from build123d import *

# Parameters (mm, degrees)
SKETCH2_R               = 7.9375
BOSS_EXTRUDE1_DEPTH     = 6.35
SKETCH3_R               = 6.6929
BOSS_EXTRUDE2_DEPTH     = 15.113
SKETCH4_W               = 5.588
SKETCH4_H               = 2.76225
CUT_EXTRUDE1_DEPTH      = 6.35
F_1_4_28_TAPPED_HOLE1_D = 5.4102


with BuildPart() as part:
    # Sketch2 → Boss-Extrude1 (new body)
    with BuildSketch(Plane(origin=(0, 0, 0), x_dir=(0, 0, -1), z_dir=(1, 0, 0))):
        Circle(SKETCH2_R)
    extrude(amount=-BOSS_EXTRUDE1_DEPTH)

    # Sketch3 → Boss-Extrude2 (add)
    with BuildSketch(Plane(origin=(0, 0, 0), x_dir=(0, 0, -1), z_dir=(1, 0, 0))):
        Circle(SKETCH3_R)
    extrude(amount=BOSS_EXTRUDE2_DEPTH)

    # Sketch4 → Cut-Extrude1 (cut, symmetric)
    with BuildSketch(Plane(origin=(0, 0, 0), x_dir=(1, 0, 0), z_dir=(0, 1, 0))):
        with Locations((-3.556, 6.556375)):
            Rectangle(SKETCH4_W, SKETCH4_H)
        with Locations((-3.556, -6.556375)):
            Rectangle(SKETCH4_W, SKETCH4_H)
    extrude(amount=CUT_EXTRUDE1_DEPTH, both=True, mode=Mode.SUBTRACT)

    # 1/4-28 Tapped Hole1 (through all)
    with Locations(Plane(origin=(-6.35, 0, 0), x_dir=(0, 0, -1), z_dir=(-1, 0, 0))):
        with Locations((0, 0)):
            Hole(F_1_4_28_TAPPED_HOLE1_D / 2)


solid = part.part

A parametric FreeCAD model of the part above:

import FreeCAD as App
import Part
import Sketcher
Q = App.Units.Quantity


def add_polygon(sketch, points):
    """Adds a closed chain of lines whose ends are joined by coincident constraints."""
    first, n = sketch.GeometryCount, len(points)
    for a, b in zip(points, points[1:] + points[:1]):
        sketch.addGeometry(Part.LineSegment(App.Vector(*a, 0), App.Vector(*b, 0)), False)
    for i in range(n):
        sketch.addConstraint(Sketcher.Constraint("Coincident", first + i, 2, first + (i + 1) % n, 1))

doc = App.newDocument("Part")
body = doc.addObject("PartDesign::Body", "Body")

# Sketch on YZ plane
sketch1 = body.newObject("Sketcher::SketchObject", "Sketch")
sketch1.AttachmentSupport = (doc.getObject("YZ_Plane"), [""])
sketch1.MapMode = "FlatFace"
sketch1.addGeometry(Part.Circle(App.Vector(0, 0, 0), App.Vector(0, 0, 1), 8), False)
sketch1.addConstraint(Sketcher.Constraint("Coincident", 0, 3, -1, 1))
sketch1.addConstraint(Sketcher.Constraint("Diameter", 0, Q("0.625 in")))
pad1 = body.newObject("PartDesign::Pad", "Pad")
pad1.Profile = sketch1
pad1.Length = Q("0.25 in")
pad1.Reversed = True

# Sketch on YZ plane
sketch2 = body.newObject("Sketcher::SketchObject", "Sketch001")
sketch2.AttachmentSupport = (doc.getObject("YZ_Plane"), [""])
sketch2.MapMode = "FlatFace"
sketch2.addGeometry(Part.Circle(App.Vector(0, 0, 0), App.Vector(0, 0, 1), 7), False)
sketch2.addConstraint(Sketcher.Constraint("Coincident", 0, 3, -1, 1))
sketch2.addConstraint(Sketcher.Constraint("Diameter", 0, Q("0.527 in")))
pad2 = body.newObject("PartDesign::Pad", "Pad001")
pad2.Profile = sketch2
pad2.Length = Q("0.595 in")

# Sketch on XZ plane
sketch3 = body.newObject("Sketcher::SketchObject", "Sketch002")
sketch3.AttachmentSupport = (doc.getObject("XZ_Plane"), [""])
sketch3.MapMode = "FlatFace"
add_polygon(sketch3, [(-6.3, -7.9), (-6.3, -5.2), (-0.8, -5.2), (-0.8, -7.9)])  # lines 0-3
add_polygon(sketch3, [(-6.3, 5.2), (-6.3, 7.9), (-0.8, 7.9), (-0.8, 5.2)])  # lines 4-7
sketch3.addConstraint(Sketcher.Constraint("Vertical", 0))
sketch3.addConstraint(Sketcher.Constraint("Horizontal", 1))
sketch3.addConstraint(Sketcher.Constraint("Vertical", 2))
sketch3.addConstraint(Sketcher.Constraint("Horizontal", 3))
sketch3.addConstraint(Sketcher.Constraint("Vertical", 4))
sketch3.addConstraint(Sketcher.Constraint("Horizontal", 5))
sketch3.addConstraint(Sketcher.Constraint("Vertical", 6))
sketch3.addConstraint(Sketcher.Constraint("Horizontal", 7))
sketch3.addConstraint(Sketcher.Constraint("Symmetric", 3, 2, 4, 2, -1))
sketch3.addConstraint(Sketcher.Constraint("Symmetric", 1, 2, 6, 2, -1))
sketch3.addConstraint(Sketcher.Constraint("DistanceX", 1, 1, 1, 2, Q("0.22 in")))
sketch3.addConstraint(Sketcher.Constraint("DistanceX", 0, 2, -1, 1, Q("0.25 in")))
sketch3.addConstraint(Sketcher.Constraint("DistanceY", 2, 2, -1, 1, Q("0.3125 in")))
sketch3.addConstraint(Sketcher.Constraint("DistanceY", 1, 2, 6, 2, Q("0.4075 in")))
pocket1 = body.newObject("PartDesign::Pocket", "Pocket")
pocket1.Profile = sketch3
pocket1.Length = Q("0.5 in")
pocket1.Midplane = True

# Sketch on YZ plane
sketch4 = body.newObject("Sketcher::SketchObject", "Sketch003")
sketch4.AttachmentSupport = (doc.getObject("YZ_Plane"), [""])
sketch4.MapMode = "FlatFace"
sketch4.AttachmentOffset = App.Placement(App.Vector(0, 0, -0.25 * 25.4), App.Rotation())
sketch4.addGeometry(Part.Circle(App.Vector(0, 0, 0), App.Vector(0, 0, 1), 2.7), False)
sketch4.addConstraint(Sketcher.Constraint("Coincident", 0, 3, -1, 1))
sketch4.addConstraint(Sketcher.Constraint("Diameter", 0, Q("0.213 in")))
doc.recompute()
hole = body.newObject("PartDesign::Hole", "Hole")
hole.Profile = sketch4
hole.ThreadType = "None"
hole.Diameter = Q("0.213 in")
hole.DepthType = "ThroughAll"
hole.Reversed = True

doc.recompute()
